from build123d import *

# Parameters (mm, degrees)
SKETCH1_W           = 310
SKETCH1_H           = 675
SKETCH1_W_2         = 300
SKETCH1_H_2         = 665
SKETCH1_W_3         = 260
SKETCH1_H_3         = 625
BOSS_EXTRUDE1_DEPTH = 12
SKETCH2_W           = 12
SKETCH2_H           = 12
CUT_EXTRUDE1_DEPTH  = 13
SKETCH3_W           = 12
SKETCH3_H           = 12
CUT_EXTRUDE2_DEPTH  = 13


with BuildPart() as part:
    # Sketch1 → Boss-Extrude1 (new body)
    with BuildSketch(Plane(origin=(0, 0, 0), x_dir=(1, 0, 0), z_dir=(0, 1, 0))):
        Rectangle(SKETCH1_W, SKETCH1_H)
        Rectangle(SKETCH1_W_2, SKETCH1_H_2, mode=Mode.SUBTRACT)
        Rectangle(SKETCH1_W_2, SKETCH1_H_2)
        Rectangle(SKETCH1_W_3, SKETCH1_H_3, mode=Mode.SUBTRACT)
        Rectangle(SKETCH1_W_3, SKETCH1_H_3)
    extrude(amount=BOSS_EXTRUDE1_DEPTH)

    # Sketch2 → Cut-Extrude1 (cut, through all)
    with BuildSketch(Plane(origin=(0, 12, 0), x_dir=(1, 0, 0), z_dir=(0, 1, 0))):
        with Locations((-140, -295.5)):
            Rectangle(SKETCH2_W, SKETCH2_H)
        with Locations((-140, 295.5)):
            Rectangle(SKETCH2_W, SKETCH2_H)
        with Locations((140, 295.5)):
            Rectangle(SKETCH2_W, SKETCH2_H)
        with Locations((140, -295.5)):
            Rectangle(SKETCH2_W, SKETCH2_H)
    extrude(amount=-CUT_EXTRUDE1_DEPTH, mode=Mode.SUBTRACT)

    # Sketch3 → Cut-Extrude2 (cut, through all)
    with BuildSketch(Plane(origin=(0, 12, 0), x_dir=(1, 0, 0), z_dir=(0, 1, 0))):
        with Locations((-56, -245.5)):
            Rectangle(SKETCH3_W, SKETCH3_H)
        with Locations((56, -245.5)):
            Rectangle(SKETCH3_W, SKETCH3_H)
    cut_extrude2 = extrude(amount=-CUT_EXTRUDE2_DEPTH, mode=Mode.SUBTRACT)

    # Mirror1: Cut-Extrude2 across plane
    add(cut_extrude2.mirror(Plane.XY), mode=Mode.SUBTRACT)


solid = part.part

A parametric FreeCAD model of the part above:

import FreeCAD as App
import Part
import Sketcher

V = App.Vector
Q = App.Units.Quantity

doc = App.newDocument("Part")
body = doc.addObject("PartDesign::Body", "Body")

# Sketch on XZ plane
sketch1 = doc.addObject("Sketcher::SketchObject", "Sketch")
body.addObject(sketch1)
sketch1.AttachmentSupport = (doc.XZ_Plane, [""])
sketch1.MapMode = "FlatFace"
sketch1.addGeometry([
    Part.LineSegment(V(-155, -338, 0), V(-155, 338, 0)),
    Part.LineSegment(V(-155, 338, 0), V(155, 338, 0)),
    Part.LineSegment(V(155, 338, 0), V(155, -338, 0)),
    Part.LineSegment(V(155, -338, 0), V(-155, -338, 0)),
], False)
sketch1.addConstraint([
    Sketcher.Constraint("Coincident", 0, 2, 1, 1),
    Sketcher.Constraint("Coincident", 1, 2, 2, 1),
    Sketcher.Constraint("Coincident", 2, 2, 3, 1),
    Sketcher.Constraint("Coincident", 3, 2, 0, 1),
    Sketcher.Constraint("Vertical", 0),
    Sketcher.Constraint("Horizontal", 1),
    Sketcher.Constraint("Vertical", 2),
    Sketcher.Constraint("Horizontal", 3),
    Sketcher.Constraint("Symmetric", 0, 2, 2, 2, -1, 1),
    Sketcher.Constraint("DistanceX", 1, 1, 1, 2, Q("310 mm")),
    Sketcher.Constraint("DistanceY", 0, 1, 0, 2, Q("675 mm")),
])
pad1 = doc.addObject("PartDesign::Pad", "Pad")
body.addObject(pad1)
pad1.Profile = sketch1
pad1.Length = 12
pad1.Reversed = True

# Sketch on XZ plane
sketch2 = doc.addObject("Sketcher::SketchObject", "Sketch001")
body.addObject(sketch2)
sketch2.AttachmentSupport = (doc.XZ_Plane, [""])
sketch2.MapMode = "FlatFace"
sketch2.AttachmentOffset = App.Placement(V(0, 0, -12), App.Rotation())
sketch2.addGeometry([
    Part.LineSegment(V(-146, 290, 0), V(-146, 302, 0)),  # 0
    Part.LineSegment(V(-146, 302, 0), V(-134, 302, 0)),  # 1
    Part.LineSegment(V(-134, 302, 0), V(-134, 290, 0)),  # 2
    Part.LineSegment(V(-134, 290, 0), V(-146, 290, 0)),  # 3
    Part.LineSegment(V(-146, -302, 0), V(-146, -290, 0)),  # 4
    Part.LineSegment(V(-146, -290, 0), V(-134, -290, 0)),  # 5
    Part.LineSegment(V(-134, -290, 0), V(-134, -302, 0)),  # 6
    Part.LineSegment(V(-134, -302, 0), V(-146, -302, 0)),  # 7
    Part.LineSegment(V(134, -302, 0), V(134, -290, 0)),  # 8
    Part.LineSegment(V(134, -290, 0), V(146, -290, 0)),  # 9
    Part.LineSegment(V(146, -290, 0), V(146, -302, 0)),  # 10
    Part.LineSegment(V(146, -302, 0), V(134, -302, 0)),  # 11
    Part.LineSegment(V(134, 290, 0), V(134, 302, 0)),  # 12
    Part.LineSegment(V(134, 302, 0), V(146, 302, 0)),  # 13
    Part.LineSegment(V(146, 302, 0), V(146, 290, 0)),  # 14
    Part.LineSegment(V(146, 290, 0), V(134, 290, 0)),  # 15
], False)
sketch2.addConstraint([
    Sketcher.Constraint("Coincident", 0, 2, 1, 1),
    Sketcher.Constraint("Coincident", 1, 2, 2, 1),
    Sketcher.Constraint("Coincident", 2, 2, 3, 1),
    Sketcher.Constraint("Coincident", 3, 2, 0, 1),
    Sketcher.Constraint("Coincident", 4, 2, 5, 1),
    Sketcher.Constraint("Coincident", 5, 2, 6, 1),
    Sketcher.Constraint("Coincident", 6, 2, 7, 1),
    Sketcher.Constraint("Coincident", 7, 2, 4, 1),
    Sketcher.Constraint("Coincident", 8, 2, 9, 1),
    Sketcher.Constraint("Coincident", 9, 2, 10, 1),
    Sketcher.Constraint("Coincident", 10, 2, 11, 1),
    Sketcher.Constraint("Coincident", 11, 2, 8, 1),
    Sketcher.Constraint("Coincident", 12, 2, 13, 1),
    Sketcher.Constraint("Coincident", 13, 2, 14, 1),
    Sketcher.Constraint("Coincident", 14, 2, 15, 1),
    Sketcher.Constraint("Coincident", 15, 2, 12, 1),
    Sketcher.Constraint("Vertical", 0),
    Sketcher.Constraint("Horizontal", 1),
    Sketcher.Constraint("Vertical", 2),
    Sketcher.Constraint("Horizontal", 3),
    Sketcher.Constraint("Vertical", 4),
    Sketcher.Constraint("Horizontal", 5),
    Sketcher.Constraint("Vertical", 6),
    Sketcher.Constraint("Horizontal", 7),
    Sketcher.Constraint("Vertical", 8),
    Sketcher.Constraint("Horizontal", 9),
    Sketcher.Constraint("Vertical", 10),
    Sketcher.Constraint("Horizontal", 11),
    Sketcher.Constraint("Vertical", 12),
    Sketcher.Constraint("Horizontal", 13),
    Sketcher.Constraint("Vertical", 14),
    Sketcher.Constraint("Horizontal", 15),
    Sketcher.Constraint("Symmetric", 2, 2, 8, 2, -1, 1),
    Sketcher.Constraint("Symmetric", 0, 2, 10, 2, -1, 1),
    Sketcher.Constraint("Symmetric", 6, 2, 12, 2, -1, 1),
    Sketcher.Constraint("Symmetric", 4, 2, 14, 2, -1, 1),
    Sketcher.Constraint("Symmetric", 5, 2, 8, 2, -2),
    Sketcher.Constraint("Symmetric", 7, 2, 10, 2, -2),
    Sketcher.Constraint("Equal", 15, 0),
    Sketcher.Constraint("DistanceX", 1, 1, 1, 2, Q("12 mm")),
    Sketcher.Constraint("DistanceX", 0, 2, -1, 1, Q("146 mm")),
    Sketcher.Constraint("DistanceY", 4, 2, 3, 2, Q("579 mm")),
])
pocket1 = doc.addObject("PartDesign::Pocket", "Pocket")
body.addObject(pocket1)
pocket1.Profile = sketch2
pocket1.Type = "ThroughAll"
pocket1.Reversed = True

# Sketch on XZ plane
sketch3 = doc.addObject("Sketcher::SketchObject", "Sketch002")
body.addObject(sketch3)
sketch3.AttachmentSupport = (doc.XZ_Plane, [""])
sketch3.MapMode = "FlatFace"
sketch3.AttachmentOffset = App.Placement(V(0, 0, -12), App.Rotation())
sketch3.addGeometry([
    Part.LineSegment(V(-62, 240, 0), V(-62, 252, 0)),  # 0
    Part.LineSegment(V(-62, 252, 0), V(-50, 252, 0)),  # 1
    Part.LineSegment(V(-50, 252, 0), V(-50, 240, 0)),  # 2
    Part.LineSegment(V(-50, 240, 0), V(-62, 240, 0)),  # 3
    Part.LineSegment(V(50, 240, 0), V(50, 252, 0)),  # 4
    Part.LineSegment(V(50, 252, 0), V(62, 252, 0)),  # 5
    Part.LineSegment(V(62, 252, 0), V(62, 240, 0)),  # 6
    Part.LineSegment(V(62, 240, 0), V(50, 240, 0)),  # 7
], False)
sketch3.addConstraint([
    Sketcher.Constraint("Coincident", 0, 2, 1, 1),
    Sketcher.Constraint("Coincident", 1, 2, 2, 1),
    Sketcher.Constraint("Coincident", 2, 2, 3, 1),
    Sketcher.Constraint("Coincident", 3, 2, 0, 1),
    Sketcher.Constraint("Coincident", 4, 2, 5, 1),
    Sketcher.Constraint("Coincident", 5, 2, 6, 1),
    Sketcher.Constraint("Coincident", 6, 2, 7, 1),
    Sketcher.Constraint("Coincident", 7, 2, 4, 1),
    Sketcher.Constraint("Vertical", 0),
    Sketcher.Constraint("Horizontal", 1),
    Sketcher.Constraint("Vertical", 2),
    Sketcher.Constraint("Horizontal", 3),
    Sketcher.Constraint("Vertical", 4),
    Sketcher.Constraint("Horizontal", 5),
    Sketcher.Constraint("Vertical", 6),
    Sketcher.Constraint("Horizontal", 7),
    Sketcher.Constraint("Symmetric", 1, 2, 4, 2, -2),
    Sketcher.Constraint("Symmetric", 3, 2, 6, 2, -2),
    Sketcher.Constraint("Equal", 7, 0),
    Sketcher.Constraint("DistanceX", 1, 1, 1, 2, Q("12 mm")),
    Sketcher.Constraint("DistanceX", 0, 2, -1, 1, Q("62 mm")),
    Sketcher.Constraint("DistanceY", -1, 1, 0, 2, Q("251.5 mm")),
])
pocket2 = doc.addObject("PartDesign::Pocket", "Pocket001")
body.addObject(pocket2)
pocket2.Profile = sketch3
pocket2.Type = "ThroughAll"
pocket2.Reversed = True
doc.recompute()

mirrored = doc.addObject("PartDesign::Mirrored", "Mirrored")
body.addObject(mirrored)
mirrored.Originals = [pocket2]
mirrored.MirrorPlane = (doc.XY_Plane, [""])
body.Tip = mirrored

doc.recompute()
